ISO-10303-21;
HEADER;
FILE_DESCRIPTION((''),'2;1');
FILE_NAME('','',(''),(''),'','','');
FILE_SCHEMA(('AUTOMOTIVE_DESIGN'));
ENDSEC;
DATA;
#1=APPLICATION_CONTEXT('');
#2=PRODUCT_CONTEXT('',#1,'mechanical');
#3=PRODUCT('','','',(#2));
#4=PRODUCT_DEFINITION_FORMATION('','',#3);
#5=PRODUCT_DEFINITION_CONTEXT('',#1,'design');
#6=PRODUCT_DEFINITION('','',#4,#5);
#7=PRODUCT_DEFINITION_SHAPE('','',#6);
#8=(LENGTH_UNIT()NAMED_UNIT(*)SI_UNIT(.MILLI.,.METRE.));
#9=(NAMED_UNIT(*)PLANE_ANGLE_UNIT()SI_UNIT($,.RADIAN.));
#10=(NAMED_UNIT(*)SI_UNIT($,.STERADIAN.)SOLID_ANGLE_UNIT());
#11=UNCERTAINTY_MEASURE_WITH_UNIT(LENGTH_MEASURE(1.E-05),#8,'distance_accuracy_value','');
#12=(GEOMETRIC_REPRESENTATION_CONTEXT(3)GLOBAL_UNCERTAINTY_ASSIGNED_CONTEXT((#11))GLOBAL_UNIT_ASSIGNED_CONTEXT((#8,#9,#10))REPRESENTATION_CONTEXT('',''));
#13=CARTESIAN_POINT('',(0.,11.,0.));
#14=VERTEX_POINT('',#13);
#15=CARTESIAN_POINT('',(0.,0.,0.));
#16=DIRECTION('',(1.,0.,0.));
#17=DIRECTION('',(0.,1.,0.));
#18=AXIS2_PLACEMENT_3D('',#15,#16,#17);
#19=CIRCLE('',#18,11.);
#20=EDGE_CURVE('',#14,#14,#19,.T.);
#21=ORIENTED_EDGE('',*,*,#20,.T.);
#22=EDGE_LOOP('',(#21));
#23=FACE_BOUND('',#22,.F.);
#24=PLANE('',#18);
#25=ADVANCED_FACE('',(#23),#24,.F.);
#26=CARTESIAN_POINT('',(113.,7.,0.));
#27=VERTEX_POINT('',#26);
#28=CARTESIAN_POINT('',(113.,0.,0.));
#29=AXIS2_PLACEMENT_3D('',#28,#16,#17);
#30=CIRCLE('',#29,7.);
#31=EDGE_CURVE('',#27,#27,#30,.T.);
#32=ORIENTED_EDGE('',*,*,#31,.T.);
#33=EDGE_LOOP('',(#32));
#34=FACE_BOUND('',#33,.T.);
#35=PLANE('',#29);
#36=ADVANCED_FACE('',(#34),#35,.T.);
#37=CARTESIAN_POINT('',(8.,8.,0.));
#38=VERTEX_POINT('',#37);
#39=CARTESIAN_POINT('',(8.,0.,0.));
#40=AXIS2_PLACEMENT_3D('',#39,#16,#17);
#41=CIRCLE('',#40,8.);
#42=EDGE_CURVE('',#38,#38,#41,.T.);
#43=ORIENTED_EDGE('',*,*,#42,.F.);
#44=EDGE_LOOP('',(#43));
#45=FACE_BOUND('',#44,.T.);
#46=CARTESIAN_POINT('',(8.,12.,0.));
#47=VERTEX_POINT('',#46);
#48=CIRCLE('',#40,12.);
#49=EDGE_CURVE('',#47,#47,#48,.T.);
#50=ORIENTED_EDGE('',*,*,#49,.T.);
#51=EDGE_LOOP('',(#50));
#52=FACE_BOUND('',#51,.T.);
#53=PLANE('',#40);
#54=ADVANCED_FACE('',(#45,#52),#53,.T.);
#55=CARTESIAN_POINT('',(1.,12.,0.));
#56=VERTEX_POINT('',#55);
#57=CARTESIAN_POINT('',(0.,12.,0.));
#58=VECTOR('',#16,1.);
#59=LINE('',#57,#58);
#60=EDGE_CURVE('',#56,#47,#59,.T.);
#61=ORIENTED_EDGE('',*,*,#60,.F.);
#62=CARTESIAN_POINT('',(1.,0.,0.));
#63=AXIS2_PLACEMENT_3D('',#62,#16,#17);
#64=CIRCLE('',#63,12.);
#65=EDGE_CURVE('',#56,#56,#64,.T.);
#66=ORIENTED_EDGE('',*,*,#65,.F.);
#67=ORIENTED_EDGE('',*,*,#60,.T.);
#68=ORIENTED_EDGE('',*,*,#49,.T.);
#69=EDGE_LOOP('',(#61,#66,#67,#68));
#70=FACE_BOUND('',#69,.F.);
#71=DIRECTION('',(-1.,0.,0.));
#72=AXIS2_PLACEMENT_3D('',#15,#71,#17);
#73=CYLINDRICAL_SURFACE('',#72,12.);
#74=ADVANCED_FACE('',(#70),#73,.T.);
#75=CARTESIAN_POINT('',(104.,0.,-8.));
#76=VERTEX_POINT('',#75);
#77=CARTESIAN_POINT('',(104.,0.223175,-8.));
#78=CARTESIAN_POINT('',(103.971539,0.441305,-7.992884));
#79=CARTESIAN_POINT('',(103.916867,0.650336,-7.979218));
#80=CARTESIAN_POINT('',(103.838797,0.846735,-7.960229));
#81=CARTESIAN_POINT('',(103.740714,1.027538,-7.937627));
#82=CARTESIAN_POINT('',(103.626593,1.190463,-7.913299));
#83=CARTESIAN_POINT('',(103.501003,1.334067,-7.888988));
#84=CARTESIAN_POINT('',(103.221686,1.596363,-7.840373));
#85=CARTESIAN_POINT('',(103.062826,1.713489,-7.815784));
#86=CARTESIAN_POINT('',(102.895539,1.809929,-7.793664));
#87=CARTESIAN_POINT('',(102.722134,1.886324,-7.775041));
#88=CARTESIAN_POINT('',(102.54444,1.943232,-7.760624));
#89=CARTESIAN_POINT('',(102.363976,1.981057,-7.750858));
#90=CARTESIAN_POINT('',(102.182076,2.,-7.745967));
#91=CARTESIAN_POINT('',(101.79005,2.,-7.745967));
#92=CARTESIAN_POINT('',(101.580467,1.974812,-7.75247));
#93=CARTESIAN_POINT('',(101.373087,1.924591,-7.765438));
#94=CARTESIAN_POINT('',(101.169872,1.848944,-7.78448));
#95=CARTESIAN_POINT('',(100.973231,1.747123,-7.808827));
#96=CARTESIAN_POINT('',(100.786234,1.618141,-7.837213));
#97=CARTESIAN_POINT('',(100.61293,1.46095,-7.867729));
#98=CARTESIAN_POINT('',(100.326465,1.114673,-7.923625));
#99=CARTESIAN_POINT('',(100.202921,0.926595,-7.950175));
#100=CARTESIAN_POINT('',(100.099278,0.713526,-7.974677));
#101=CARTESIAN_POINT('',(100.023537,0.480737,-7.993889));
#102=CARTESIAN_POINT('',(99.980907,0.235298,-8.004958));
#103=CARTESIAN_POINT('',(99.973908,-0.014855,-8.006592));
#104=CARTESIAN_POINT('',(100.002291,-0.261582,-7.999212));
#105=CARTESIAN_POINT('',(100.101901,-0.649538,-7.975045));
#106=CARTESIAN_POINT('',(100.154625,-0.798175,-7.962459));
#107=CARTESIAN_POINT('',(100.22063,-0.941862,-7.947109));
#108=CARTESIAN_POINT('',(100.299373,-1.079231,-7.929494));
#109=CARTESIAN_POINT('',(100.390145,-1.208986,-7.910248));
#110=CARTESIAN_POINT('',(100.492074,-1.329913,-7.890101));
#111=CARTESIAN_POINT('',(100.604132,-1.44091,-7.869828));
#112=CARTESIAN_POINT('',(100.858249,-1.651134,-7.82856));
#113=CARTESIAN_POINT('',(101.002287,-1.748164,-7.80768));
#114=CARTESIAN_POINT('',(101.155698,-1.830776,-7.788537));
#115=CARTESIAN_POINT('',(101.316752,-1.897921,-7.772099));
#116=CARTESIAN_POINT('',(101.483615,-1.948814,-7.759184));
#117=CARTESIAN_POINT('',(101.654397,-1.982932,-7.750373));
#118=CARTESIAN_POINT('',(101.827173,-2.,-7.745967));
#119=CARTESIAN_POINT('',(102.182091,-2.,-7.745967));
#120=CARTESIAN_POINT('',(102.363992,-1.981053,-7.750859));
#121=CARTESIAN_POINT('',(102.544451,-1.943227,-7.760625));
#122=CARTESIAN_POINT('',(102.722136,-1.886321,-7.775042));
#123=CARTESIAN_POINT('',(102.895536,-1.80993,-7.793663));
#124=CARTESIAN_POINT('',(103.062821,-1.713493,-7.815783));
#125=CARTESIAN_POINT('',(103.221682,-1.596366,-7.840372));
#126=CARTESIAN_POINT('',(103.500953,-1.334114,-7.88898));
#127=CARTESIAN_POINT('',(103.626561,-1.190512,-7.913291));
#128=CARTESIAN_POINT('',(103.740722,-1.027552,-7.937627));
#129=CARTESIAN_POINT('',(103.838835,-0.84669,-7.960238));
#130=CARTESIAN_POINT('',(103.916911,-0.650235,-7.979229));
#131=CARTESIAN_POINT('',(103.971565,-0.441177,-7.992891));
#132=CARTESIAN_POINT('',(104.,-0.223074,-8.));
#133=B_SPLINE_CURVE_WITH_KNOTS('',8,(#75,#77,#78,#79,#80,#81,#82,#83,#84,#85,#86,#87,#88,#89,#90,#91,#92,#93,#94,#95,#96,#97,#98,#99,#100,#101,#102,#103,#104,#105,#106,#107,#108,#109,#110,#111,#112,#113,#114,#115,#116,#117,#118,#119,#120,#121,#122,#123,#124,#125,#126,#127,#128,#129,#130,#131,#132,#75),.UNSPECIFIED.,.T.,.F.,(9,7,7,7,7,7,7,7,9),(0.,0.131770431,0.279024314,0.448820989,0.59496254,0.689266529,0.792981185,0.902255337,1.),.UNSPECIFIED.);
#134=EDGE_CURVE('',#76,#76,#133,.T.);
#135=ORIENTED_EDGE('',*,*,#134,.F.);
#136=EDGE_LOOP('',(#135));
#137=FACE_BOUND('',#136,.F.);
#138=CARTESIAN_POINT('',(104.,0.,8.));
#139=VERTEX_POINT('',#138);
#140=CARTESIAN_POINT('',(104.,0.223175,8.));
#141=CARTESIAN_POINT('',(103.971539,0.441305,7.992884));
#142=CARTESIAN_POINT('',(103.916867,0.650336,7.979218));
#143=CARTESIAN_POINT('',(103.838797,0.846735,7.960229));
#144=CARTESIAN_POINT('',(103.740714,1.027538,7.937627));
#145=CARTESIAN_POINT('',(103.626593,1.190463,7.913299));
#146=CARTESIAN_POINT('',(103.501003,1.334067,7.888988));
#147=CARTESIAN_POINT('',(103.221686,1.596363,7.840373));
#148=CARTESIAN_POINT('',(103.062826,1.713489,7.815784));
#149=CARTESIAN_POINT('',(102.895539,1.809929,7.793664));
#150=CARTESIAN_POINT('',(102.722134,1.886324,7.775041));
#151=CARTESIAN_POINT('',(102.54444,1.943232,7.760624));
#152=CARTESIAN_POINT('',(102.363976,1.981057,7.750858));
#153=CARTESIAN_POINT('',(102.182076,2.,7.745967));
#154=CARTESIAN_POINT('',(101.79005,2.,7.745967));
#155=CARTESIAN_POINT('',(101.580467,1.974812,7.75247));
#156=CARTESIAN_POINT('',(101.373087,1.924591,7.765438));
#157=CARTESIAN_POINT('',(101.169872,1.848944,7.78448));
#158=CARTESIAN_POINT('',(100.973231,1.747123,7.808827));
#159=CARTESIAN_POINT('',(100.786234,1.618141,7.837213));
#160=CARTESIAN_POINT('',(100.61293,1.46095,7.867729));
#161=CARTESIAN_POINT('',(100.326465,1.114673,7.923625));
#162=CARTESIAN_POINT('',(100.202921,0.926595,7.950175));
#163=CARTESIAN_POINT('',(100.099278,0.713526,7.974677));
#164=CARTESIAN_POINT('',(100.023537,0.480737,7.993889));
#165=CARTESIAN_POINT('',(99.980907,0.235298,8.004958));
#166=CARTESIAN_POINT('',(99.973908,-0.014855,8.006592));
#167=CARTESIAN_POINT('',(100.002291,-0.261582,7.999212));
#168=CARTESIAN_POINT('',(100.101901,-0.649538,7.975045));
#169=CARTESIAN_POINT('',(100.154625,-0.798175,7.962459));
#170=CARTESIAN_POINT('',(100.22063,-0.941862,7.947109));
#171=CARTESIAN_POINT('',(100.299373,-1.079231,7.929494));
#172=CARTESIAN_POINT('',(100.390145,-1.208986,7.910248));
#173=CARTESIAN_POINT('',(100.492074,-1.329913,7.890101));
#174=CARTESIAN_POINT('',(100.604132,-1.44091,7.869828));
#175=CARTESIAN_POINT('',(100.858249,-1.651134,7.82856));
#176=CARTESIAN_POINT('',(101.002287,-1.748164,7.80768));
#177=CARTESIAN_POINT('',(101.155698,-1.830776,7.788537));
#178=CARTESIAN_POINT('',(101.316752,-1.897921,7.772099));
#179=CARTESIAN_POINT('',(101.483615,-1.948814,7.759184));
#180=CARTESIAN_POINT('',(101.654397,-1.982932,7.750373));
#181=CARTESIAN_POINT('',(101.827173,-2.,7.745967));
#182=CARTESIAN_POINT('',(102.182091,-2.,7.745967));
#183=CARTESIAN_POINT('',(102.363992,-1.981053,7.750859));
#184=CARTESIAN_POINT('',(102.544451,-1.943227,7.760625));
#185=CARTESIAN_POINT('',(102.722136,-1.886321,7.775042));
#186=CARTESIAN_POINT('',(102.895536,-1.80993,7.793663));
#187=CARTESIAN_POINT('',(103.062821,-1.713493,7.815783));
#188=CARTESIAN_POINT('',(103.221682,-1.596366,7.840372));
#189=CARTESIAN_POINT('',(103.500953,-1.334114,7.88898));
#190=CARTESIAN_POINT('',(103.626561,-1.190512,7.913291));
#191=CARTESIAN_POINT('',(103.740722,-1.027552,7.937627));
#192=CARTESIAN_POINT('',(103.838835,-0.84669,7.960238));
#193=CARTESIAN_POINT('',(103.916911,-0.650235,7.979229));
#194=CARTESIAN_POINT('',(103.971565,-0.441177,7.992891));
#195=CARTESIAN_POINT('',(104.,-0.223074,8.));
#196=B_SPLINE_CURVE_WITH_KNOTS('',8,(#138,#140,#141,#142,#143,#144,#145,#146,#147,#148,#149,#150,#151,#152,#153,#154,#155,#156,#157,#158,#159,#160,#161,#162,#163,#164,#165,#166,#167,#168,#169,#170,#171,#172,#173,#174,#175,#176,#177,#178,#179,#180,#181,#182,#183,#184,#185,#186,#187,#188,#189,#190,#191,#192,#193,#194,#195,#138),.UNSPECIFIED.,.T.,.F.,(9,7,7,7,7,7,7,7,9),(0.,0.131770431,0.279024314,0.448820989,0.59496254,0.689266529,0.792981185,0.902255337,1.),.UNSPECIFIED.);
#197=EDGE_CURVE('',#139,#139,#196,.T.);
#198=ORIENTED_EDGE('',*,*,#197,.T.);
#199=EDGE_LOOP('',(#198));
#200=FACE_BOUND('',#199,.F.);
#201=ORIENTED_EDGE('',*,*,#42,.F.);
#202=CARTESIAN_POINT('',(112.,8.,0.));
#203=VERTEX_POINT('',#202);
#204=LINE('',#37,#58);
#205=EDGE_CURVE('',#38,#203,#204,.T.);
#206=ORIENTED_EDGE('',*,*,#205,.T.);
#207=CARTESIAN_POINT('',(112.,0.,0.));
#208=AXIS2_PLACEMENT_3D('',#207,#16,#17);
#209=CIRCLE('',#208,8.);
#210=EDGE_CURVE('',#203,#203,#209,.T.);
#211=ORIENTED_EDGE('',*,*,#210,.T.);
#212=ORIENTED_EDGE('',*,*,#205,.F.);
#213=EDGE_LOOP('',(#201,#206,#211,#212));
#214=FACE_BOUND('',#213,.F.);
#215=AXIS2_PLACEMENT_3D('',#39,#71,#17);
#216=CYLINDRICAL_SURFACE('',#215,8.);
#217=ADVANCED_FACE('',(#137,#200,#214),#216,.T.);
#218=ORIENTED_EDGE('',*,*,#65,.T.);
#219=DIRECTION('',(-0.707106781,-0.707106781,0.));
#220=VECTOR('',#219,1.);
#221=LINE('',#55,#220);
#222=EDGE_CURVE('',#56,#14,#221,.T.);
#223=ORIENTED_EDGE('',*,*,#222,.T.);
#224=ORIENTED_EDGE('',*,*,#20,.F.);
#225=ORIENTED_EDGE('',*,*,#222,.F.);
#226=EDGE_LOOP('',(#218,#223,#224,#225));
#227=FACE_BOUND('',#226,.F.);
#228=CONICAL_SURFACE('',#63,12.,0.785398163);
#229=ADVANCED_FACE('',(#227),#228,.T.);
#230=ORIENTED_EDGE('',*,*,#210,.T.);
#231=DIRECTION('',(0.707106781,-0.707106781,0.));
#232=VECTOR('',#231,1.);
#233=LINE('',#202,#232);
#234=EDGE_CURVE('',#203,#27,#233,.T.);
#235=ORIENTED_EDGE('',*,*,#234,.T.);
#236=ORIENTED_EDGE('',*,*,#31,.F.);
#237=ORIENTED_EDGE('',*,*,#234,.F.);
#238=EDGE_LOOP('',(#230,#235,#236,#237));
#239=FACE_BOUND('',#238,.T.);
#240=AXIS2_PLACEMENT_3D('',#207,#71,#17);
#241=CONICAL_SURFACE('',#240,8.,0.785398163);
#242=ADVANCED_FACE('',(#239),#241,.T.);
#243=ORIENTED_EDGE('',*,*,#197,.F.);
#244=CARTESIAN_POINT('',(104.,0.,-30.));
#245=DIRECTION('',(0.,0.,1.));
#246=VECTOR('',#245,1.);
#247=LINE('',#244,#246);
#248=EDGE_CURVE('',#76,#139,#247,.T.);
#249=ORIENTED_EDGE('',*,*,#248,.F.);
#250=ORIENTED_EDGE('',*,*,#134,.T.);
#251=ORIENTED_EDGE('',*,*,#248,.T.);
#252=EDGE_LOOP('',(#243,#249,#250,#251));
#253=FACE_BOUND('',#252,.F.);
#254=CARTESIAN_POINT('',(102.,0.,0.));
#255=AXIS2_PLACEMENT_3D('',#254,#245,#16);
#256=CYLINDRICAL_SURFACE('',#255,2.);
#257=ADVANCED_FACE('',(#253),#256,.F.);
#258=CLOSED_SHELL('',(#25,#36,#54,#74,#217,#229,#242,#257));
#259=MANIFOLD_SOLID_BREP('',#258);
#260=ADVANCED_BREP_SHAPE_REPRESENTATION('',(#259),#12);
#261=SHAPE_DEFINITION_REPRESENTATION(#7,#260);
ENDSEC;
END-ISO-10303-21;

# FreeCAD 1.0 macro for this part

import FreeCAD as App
import Part
import Sketcher
Q = App.Units.Quantity


def edges_at(feature, points):
    """Names of the edges that pass closest to the given points."""
    edges = feature.Shape.Edges
    near = lambda p: min(range(len(edges)), key=lambda i: edges[i].distToShape(Part.Vertex(*p))[0])
    return sorted({f"Edge{near(p) + 1}" for p in points})

doc = App.newDocument("Part")
body = doc.addObject("PartDesign::Body", "Body")

sketch1 = body.newObject("Sketcher::SketchObject", "Sketch")
sketch1.AttachmentSupport = (doc.getObject("YZ_Plane"), [""])
sketch1.MapMode = "FlatFace"
sketch1.addGeometry(Part.Circle(App.Vector(0, 0, 0), App.Vector(0, 0, 1), 12), False)
sketch1.addConstraint([
    Sketcher.Constraint("Coincident", 0, 3, -1, 1),
    Sketcher.Constraint("Diameter", 0, Q("24 mm")),
])
pad1 = body.newObject("PartDesign::Pad", "Pad")
pad1.Profile = sketch1
pad1.Length = 8
doc.recompute()

chamfer = body.newObject("PartDesign::Chamfer", "Chamfer")
chamfer.Base = (pad1, edges_at(pad1, [(0, -12, 0)]))
chamfer.Size = 1

sketch2 = body.newObject("Sketcher::SketchObject", "Sketch001")
sketch2.AttachmentSupport = (doc.getObject("YZ_Plane"), [""])
sketch2.MapMode = "FlatFace"
sketch2.AttachmentOffset = App.Placement(App.Vector(0, 0, 8), App.Rotation())
sketch2.addGeometry(Part.Circle(App.Vector(0, 0, 0), App.Vector(0, 0, 1), 8), False)
sketch2.addConstraint([
    Sketcher.Constraint("Coincident", 0, 3, -1, 1),
    Sketcher.Constraint("Diameter", 0, Q("16 mm")),
])
pad2 = body.newObject("PartDesign::Pad", "Pad001")
pad2.Profile = sketch2
pad2.Length = 105
doc.recompute()

chamfer2 = body.newObject("PartDesign::Chamfer", "Chamfer001")
chamfer2.Base = (pad2, edges_at(pad2, [(113, -8, 0)]))
chamfer2.Size = 1

sketch3 = body.newObject("Sketcher::SketchObject", "Sketch002")
sketch3.AttachmentSupport = (doc.getObject("XY_Plane"), [""])
sketch3.MapMode = "FlatFace"
sketch3.addGeometry(Part.Circle(App.Vector(102, 0, 0), App.Vector(0, 0, 1), 2), False)
sketch3.addConstraint([
    Sketcher.Constraint("PointOnObject", 0, 3, -1),
    Sketcher.Constraint("Diameter", 0, Q("4 mm")),
    Sketcher.Constraint("DistanceX", -1, 1, 0, 3, Q("102 mm")),
])
pocket1 = body.newObject("PartDesign::Pocket", "Pocket")
pocket1.Profile = sketch3
pocket1.Length = 60
pocket1.Midplane = True

doc.recompute()
